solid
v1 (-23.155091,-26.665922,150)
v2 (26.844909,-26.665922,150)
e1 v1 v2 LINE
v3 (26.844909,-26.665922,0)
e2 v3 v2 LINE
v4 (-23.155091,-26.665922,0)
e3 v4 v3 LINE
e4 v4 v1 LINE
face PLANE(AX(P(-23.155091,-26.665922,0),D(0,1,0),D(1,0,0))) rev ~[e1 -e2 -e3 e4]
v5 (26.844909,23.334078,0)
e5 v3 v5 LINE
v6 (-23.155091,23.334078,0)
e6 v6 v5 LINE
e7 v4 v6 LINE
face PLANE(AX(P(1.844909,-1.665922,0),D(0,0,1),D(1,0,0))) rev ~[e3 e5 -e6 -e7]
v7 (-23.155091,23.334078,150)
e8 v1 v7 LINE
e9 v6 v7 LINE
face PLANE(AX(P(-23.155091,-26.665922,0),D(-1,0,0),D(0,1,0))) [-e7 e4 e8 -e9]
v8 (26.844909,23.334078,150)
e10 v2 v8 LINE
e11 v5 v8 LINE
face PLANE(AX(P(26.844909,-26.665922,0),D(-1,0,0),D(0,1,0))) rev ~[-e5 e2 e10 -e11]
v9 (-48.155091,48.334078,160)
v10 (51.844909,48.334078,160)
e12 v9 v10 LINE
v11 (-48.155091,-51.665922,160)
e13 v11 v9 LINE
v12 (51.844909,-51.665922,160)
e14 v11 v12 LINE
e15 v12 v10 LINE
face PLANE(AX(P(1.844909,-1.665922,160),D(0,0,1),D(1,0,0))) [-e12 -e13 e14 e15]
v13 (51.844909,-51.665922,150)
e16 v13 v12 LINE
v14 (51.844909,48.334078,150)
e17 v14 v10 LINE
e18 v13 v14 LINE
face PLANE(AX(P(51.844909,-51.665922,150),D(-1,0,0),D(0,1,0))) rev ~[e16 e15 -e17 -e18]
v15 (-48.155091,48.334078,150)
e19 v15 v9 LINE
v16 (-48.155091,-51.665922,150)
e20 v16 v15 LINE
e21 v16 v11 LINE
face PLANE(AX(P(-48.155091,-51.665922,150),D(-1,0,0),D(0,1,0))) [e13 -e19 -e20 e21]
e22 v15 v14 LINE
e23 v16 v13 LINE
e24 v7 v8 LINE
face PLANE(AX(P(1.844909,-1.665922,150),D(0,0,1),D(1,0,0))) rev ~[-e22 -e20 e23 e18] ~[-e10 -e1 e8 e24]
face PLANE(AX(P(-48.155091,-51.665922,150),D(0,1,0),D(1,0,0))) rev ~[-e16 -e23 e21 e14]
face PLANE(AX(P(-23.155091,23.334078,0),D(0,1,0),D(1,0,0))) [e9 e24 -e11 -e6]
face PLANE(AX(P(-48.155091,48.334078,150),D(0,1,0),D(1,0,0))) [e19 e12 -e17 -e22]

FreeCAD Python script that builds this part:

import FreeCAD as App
import Part
import Sketcher
Q = App.Units.Quantity


def add_polygon(sketch, points):
    """Adds a closed chain of lines whose ends are joined by coincident constraints."""
    first, n = sketch.GeometryCount, len(points)
    for a, b in zip(points, points[1:] + points[:1]):
        sketch.addGeometry(Part.LineSegment(App.Vector(*a, 0), App.Vector(*b, 0)), False)
    for i in range(n):
        sketch.addConstraint(Sketcher.Constraint("Coincident", first + i, 2, first + (i + 1) % n, 1))

doc = App.newDocument("Part")
body = doc.addObject("PartDesign::Body", "Body")

sketch1 = body.newObject("Sketcher::SketchObject", "Sketch")
sketch1.AttachmentSupport = (doc.getObject("XY_Plane"), [""])
sketch1.MapMode = "FlatFace"
add_polygon(sketch1, [(-23.155091, 23.334078), (-23.155091, -26.665922), (26.844909, -26.665922), (26.844909, 23.334078)])
sketch1.addConstraint([
    Sketcher.Constraint("Vertical", 0),
    Sketcher.Constraint("Horizontal", 1),
    Sketcher.Constraint("Vertical", 2),
    Sketcher.Constraint("Horizontal", 3),
    Sketcher.Constraint("Equal", 3, 0),
    Sketcher.Constraint("DistanceX", 1, 1, 1, 2, Q("50 mm")),
    Sketcher.Constraint("DistanceX", 0, 2, -1, 1, Q("23.155091 mm")),
    Sketcher.Constraint("DistanceY", 0, 2, -1, 1, Q("26.665922 mm")),
])
pad1 = body.newObject("PartDesign::Pad", "Pad")
pad1.Profile = sketch1
pad1.Length = 150

sketch2 = body.newObject("Sketcher::SketchObject", "Sketch001")
sketch2.AttachmentSupport = (doc.getObject("XY_Plane"), [""])
sketch2.MapMode = "FlatFace"
sketch2.AttachmentOffset = App.Placement(App.Vector(0, 0, 150), App.Rotation())
add_polygon(sketch2, [(-48.155091, 48.334078), (-48.155091, -51.665922), (51.844909, -51.665922), (51.844909, 48.334078)])
sketch2.addConstraint([
    Sketcher.Constraint("Vertical", 0),
    Sketcher.Constraint("Horizontal", 1),
    Sketcher.Constraint("Vertical", 2),
    Sketcher.Constraint("Horizontal", 3),
    Sketcher.Constraint("Equal", 3, 0),
    Sketcher.Constraint("DistanceX", 1, 1, 1, 2, Q("100 mm")),
    Sketcher.Constraint("DistanceX", 0, 2, -1, 1, Q("48.155091 mm")),
    Sketcher.Constraint("DistanceY", 0, 2, -1, 1, Q("51.665922 mm")),
])
pad2 = body.newObject("PartDesign::Pad", "Pad001")
pad2.Profile = sketch2
pad2.Length = 10

doc.recompute()
